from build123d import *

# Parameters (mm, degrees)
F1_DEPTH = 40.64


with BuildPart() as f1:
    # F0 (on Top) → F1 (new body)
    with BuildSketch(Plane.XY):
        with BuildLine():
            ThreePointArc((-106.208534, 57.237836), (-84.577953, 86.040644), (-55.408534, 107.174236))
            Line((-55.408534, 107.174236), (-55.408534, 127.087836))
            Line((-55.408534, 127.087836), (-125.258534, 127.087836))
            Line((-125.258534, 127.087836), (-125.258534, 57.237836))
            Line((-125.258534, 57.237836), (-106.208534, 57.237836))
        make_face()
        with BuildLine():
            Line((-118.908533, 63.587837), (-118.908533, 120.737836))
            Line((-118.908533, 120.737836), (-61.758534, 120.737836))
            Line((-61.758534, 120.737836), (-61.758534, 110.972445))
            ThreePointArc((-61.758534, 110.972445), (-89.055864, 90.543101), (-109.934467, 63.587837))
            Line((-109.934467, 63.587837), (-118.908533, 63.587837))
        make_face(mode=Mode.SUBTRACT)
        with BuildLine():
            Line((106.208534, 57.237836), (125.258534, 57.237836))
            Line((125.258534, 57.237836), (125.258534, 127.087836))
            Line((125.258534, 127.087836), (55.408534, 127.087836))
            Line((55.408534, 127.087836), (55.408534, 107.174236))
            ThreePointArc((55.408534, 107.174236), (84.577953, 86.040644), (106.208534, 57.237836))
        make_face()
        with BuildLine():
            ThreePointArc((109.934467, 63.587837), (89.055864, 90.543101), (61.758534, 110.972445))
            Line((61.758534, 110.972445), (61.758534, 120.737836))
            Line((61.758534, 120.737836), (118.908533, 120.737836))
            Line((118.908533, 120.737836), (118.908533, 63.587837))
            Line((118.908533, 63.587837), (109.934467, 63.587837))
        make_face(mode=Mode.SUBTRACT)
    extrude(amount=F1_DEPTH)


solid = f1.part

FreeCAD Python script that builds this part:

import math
import FreeCAD as App
import Part
import Sketcher
from FreeCAD import Vector
Q = App.Units.Quantity

doc = App.newDocument("Part")
body = doc.addObject("PartDesign::Body", "Body")
body.AllowCompound = True

# Sketch on XY plane
sketch1 = body.newObject("Sketcher::SketchObject", "Sketch")
sketch1.AttachmentSupport = (doc.getObject("XY_Plane"), [""])
sketch1.MapMode = "FlatFace"
sketch1.addGeometry([
    Part.ArcOfCircle(Part.Circle(Vector(0, 0, 0), Vector(0, 0, 1), 121), math.radians(117), math.radians(152)),  # 0
    Part.LineSegment(Vector(-55, 107, 0), Vector(-55, 127, 0)),  # 1
    Part.LineSegment(Vector(-55, 127, 0), Vector(-125, 127, 0)),  # 2
    Part.LineSegment(Vector(-125, 127, 0), Vector(-125, 57, 0)),  # 3
    Part.LineSegment(Vector(-125, 57, 0), Vector(-106, 57, 0)),  # 4
    Part.LineSegment(Vector(-110, 64, 0), Vector(-119, 64, 0)),  # 5
    Part.LineSegment(Vector(-119, 64, 0), Vector(-119, 121, 0)),  # 6
    Part.LineSegment(Vector(-119, 121, 0), Vector(-62, 121, 0)),  # 7
    Part.LineSegment(Vector(-62, 121, 0), Vector(-62, 111, 0)),  # 8
    Part.ArcOfCircle(Part.Circle(Vector(0, 0, 0), Vector(0, 0, 1), 127), math.radians(119), math.radians(150)),  # 9
    Part.LineSegment(Vector(106, 57, 0), Vector(125, 57, 0)),  # 10
    Part.LineSegment(Vector(125, 57, 0), Vector(125, 127, 0)),  # 11
    Part.LineSegment(Vector(125, 127, 0), Vector(55, 127, 0)),  # 12
    Part.LineSegment(Vector(55, 127, 0), Vector(55, 107, 0)),  # 13
    Part.ArcOfCircle(Part.Circle(Vector(0, 0, 0), Vector(0, 0, 1), 121), math.radians(28), math.radians(63)),  # 14
    Part.LineSegment(Vector(119, 64, 0), Vector(110, 64, 0)),  # 15
    Part.ArcOfCircle(Part.Circle(Vector(0, 0, 0), Vector(0, 0, 1), 127), math.radians(30), math.radians(61)),  # 16
    Part.LineSegment(Vector(62, 111, 0), Vector(62, 121, 0)),  # 17
    Part.LineSegment(Vector(62, 121, 0), Vector(119, 121, 0)),  # 18
    Part.LineSegment(Vector(119, 121, 0), Vector(119, 64, 0)),  # 19
], False)
sketch1.addConstraint([
    Sketcher.Constraint("Coincident", 0, 1, 1, 1),
    Sketcher.Constraint("Coincident", 1, 2, 2, 1),
    Sketcher.Constraint("Coincident", 2, 2, 3, 1),
    Sketcher.Constraint("Coincident", 3, 2, 4, 1),
    Sketcher.Constraint("Coincident", 4, 2, 0, 2),
    Sketcher.Constraint("Coincident", 5, 2, 6, 1),
    Sketcher.Constraint("Coincident", 6, 2, 7, 1),
    Sketcher.Constraint("Coincident", 7, 2, 8, 1),
    Sketcher.Constraint("Coincident", 8, 2, 9, 1),
    Sketcher.Constraint("Coincident", 9, 2, 5, 1),
    Sketcher.Constraint("Coincident", 10, 2, 11, 1),
    Sketcher.Constraint("Coincident", 11, 2, 12, 1),
    Sketcher.Constraint("Coincident", 12, 2, 13, 1),
    Sketcher.Constraint("Coincident", 13, 2, 14, 2),
    Sketcher.Constraint("Coincident", 14, 1, 10, 1),
    Sketcher.Constraint("Coincident", 15, 2, 16, 1),
    Sketcher.Constraint("Coincident", 16, 2, 17, 1),
    Sketcher.Constraint("Coincident", 17, 2, 18, 1),
    Sketcher.Constraint("Coincident", 18, 2, 19, 1),
    Sketcher.Constraint("Coincident", 19, 2, 15, 1),
    Sketcher.Constraint("Vertical", 1),
    Sketcher.Constraint("Horizontal", 2),
    Sketcher.Constraint("Vertical", 3),
    Sketcher.Constraint("Horizontal", 4),
    Sketcher.Constraint("Horizontal", 5),
    Sketcher.Constraint("Vertical", 6),
    Sketcher.Constraint("Horizontal", 7),
    Sketcher.Constraint("Vertical", 8),
    Sketcher.Constraint("Horizontal", 10),
    Sketcher.Constraint("Vertical", 11),
    Sketcher.Constraint("Horizontal", 12),
    Sketcher.Constraint("Vertical", 13),
    Sketcher.Constraint("Horizontal", 15),
    Sketcher.Constraint("Vertical", 17),
    Sketcher.Constraint("Horizontal", 18),
    Sketcher.Constraint("Vertical", 19),
    Sketcher.Constraint("Coincident", 0, 3, -1, 1),
    Sketcher.Constraint("Coincident", 9, 3, -1, 1),
    Sketcher.Constraint("Coincident", 14, 3, -1, 1),
    Sketcher.Constraint("Coincident", 16, 3, -1, 1),
    Sketcher.Constraint("Equal", 0, 14),
    Sketcher.Constraint("Equal", 9, 16),
    Sketcher.Constraint("Symmetric", 3, 2, 10, 2, -2),
    Sketcher.Constraint("Symmetric", 1, 2, 12, 2, -2),
    Sketcher.Constraint("Symmetric", 7, 2, 17, 2, -2),
    Sketcher.Constraint("Symmetric", 5, 2, 19, 2, -2),
    Sketcher.Constraint("Equal", 12, 3),
    Sketcher.Constraint("Equal", 18, 6),
    Sketcher.Constraint("Radius", 9, Q("5 in")),
    Sketcher.Constraint("Radius", 0, Q("4.7499999 in")),
    Sketcher.Constraint("DistanceX", 4, 2, 0, 1, Q("2 in")),
    Sketcher.Constraint("DistanceX", 2, 2, 2, 1, Q("2.75 in")),
    Sketcher.Constraint("DistanceX", 7, 1, 7, 2, Q("2.25 in")),
    Sketcher.Constraint("DistanceX", 5, 2, 4, 2, Q("0.5 in")),
    Sketcher.Constraint("DistanceY", 5, 2, 2, 2, Q("2.5 in")),
    Sketcher.Constraint("DistanceY", 1, 1, 1, 2, Q("0.784 in")),
])
pad1 = body.newObject("PartDesign::Pad", "Pad")
pad1.Profile = sketch1
pad1.Length = Q("1.6 in")

doc.recompute()
